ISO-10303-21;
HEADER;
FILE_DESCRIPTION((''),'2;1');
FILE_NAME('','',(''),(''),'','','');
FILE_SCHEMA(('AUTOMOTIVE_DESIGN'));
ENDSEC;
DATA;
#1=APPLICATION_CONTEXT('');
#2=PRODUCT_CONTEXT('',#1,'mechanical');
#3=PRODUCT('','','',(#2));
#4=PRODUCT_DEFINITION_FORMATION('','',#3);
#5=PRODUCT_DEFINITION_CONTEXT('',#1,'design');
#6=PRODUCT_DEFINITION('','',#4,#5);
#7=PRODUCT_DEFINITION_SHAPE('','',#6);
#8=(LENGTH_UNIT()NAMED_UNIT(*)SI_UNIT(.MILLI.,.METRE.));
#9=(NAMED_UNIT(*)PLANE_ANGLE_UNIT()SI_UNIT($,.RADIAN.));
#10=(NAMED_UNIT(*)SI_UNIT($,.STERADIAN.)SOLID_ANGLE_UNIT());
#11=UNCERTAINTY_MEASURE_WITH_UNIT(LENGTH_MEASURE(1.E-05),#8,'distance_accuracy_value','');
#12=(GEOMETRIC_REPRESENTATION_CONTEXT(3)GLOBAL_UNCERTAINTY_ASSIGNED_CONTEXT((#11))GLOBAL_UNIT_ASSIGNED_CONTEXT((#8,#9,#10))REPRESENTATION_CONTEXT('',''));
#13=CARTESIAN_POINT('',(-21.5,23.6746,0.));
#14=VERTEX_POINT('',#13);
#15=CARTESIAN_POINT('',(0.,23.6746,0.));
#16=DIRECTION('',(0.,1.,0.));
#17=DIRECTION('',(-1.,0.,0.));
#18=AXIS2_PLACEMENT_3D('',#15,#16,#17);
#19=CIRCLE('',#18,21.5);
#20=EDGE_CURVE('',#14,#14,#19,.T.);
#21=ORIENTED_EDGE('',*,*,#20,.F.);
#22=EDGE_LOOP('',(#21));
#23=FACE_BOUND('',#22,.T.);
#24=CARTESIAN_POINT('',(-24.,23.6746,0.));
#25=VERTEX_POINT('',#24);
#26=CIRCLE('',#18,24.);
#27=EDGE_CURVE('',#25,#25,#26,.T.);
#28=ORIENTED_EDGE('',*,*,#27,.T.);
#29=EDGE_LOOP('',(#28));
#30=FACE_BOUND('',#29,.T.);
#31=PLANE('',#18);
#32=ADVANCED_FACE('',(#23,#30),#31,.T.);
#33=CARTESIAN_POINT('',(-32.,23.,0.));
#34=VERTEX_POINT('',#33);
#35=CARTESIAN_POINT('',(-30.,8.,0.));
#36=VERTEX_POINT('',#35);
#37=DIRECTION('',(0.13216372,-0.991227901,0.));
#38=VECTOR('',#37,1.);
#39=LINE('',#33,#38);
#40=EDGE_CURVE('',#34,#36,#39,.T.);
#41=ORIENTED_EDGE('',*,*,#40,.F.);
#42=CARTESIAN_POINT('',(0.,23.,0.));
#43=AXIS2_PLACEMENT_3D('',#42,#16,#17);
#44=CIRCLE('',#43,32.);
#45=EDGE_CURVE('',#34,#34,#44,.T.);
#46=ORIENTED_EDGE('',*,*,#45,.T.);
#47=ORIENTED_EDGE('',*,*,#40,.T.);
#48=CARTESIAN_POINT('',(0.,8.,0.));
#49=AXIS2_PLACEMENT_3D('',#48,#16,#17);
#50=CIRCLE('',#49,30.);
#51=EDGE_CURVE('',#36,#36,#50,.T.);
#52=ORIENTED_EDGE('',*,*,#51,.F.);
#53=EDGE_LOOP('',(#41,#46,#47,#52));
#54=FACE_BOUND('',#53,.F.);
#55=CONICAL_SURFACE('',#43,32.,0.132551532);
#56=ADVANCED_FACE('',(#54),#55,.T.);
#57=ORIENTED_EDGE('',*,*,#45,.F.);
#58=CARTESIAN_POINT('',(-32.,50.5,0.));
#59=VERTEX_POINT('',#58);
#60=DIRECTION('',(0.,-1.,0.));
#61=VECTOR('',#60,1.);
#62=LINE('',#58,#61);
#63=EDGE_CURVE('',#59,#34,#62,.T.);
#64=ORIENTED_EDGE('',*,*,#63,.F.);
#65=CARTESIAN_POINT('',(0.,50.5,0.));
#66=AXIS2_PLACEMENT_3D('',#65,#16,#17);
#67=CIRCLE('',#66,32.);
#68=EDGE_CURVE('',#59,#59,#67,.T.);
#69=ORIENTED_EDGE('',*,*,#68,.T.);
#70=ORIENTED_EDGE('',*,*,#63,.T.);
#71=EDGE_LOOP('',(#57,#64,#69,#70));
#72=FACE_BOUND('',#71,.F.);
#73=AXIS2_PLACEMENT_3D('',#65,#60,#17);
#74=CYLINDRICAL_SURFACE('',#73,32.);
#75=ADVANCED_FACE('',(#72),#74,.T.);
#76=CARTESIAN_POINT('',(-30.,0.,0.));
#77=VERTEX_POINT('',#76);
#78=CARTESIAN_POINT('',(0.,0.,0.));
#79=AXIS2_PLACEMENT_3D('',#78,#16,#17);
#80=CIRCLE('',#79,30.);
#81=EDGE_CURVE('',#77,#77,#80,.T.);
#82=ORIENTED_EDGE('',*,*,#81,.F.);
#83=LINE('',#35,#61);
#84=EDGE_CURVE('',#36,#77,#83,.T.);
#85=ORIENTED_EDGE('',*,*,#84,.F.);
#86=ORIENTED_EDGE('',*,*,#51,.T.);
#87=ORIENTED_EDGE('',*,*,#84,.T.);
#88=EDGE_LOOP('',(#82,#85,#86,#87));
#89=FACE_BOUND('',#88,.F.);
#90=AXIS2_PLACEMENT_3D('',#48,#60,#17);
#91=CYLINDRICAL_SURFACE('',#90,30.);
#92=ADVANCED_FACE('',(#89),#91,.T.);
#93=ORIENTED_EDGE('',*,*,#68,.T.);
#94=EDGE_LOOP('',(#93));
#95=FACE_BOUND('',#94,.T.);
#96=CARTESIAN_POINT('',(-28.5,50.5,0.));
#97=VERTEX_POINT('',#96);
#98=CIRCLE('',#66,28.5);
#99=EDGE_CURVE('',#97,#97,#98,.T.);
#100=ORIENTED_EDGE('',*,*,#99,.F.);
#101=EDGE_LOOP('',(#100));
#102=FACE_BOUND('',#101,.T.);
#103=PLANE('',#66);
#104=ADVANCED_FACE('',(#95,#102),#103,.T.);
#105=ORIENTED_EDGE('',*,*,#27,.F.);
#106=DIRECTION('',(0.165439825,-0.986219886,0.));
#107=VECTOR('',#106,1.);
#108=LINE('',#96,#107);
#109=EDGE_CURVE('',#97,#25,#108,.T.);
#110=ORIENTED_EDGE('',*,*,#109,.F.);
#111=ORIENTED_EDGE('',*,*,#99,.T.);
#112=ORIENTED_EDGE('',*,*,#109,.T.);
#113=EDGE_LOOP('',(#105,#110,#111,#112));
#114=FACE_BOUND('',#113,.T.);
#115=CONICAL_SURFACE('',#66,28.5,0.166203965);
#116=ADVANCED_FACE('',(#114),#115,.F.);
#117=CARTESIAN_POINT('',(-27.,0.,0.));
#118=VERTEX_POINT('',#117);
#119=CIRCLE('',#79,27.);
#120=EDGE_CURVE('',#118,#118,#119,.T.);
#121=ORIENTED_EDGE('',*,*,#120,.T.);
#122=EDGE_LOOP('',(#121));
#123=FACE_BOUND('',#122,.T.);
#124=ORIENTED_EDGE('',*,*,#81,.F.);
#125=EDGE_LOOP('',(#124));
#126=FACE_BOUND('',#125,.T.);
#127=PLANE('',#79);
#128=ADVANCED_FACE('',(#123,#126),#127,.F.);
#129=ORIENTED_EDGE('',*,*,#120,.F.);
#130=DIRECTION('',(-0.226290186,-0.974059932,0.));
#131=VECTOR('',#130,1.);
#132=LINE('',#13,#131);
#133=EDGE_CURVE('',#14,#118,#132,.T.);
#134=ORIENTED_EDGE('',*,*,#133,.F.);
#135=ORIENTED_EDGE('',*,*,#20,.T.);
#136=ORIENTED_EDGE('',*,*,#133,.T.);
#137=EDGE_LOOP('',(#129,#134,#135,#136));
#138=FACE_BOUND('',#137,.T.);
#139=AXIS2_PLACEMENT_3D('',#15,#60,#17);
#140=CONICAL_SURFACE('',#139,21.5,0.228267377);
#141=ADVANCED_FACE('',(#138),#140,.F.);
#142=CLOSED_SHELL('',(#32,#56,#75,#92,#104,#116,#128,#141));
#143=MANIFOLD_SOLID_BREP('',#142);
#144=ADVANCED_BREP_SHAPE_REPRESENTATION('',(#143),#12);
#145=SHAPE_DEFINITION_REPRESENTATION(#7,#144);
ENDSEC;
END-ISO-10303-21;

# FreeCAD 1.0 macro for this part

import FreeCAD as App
import Part
import Sketcher
from FreeCAD import Vector
Q = App.Units.Quantity


def add_polygon(sketch, points):
    """Adds a closed chain of lines whose ends are joined by coincident constraints."""
    first, n = sketch.GeometryCount, len(points)
    for a, b in zip(points, points[1:] + points[:1]):
        sketch.addGeometry(Part.LineSegment(App.Vector(*a, 0), App.Vector(*b, 0)), False)
    for i in range(n):
        sketch.addConstraint(Sketcher.Constraint("Coincident", first + i, 2, first + (i + 1) % n, 1))

doc = App.newDocument("Part")
body = doc.addObject("PartDesign::Body", "Body")

# Sketch on XY plane
sketch1 = body.newObject("Sketcher::SketchObject", "Sketch")
sketch1.AttachmentSupport = (doc.getObject("XY_Plane"), [""])
sketch1.MapMode = "FlatFace"
add_polygon(sketch1, [(-28.5, 50.5), (-32, 50.5), (-32, 23), (-30, 8), (-30, 0), (-27, 0), (-21.5, 23.7), (-24, 23.7)])  # lines 0-7
sketch1.addConstraint([
    Sketcher.Constraint("Horizontal", 0),
    Sketcher.Constraint("Vertical", 1),
    Sketcher.Constraint("Vertical", 3),
    Sketcher.Constraint("Horizontal", 4),
    Sketcher.Constraint("Horizontal", 6),
    Sketcher.Constraint("PointOnObject", 3, 2, -1),
    Sketcher.Constraint("DistanceX", 4, 1, 4, 2, Q("3 mm")),
    Sketcher.Constraint("DistanceY", 3, 2, 3, 1, Q("8 mm")),
    Sketcher.Constraint("DistanceX", 0, 2, 0, 1, Q("3.5 mm")),
    Sketcher.Constraint("DistanceX", 6, 2, 6, 1, Q("2.5 mm")),
    Sketcher.Constraint("DistanceX", 1, 2, 2, 2, Q("2 mm")),
    Sketcher.Constraint("DistanceY", 2, 2, 1, 2, Q("15 mm")),
    Sketcher.Constraint("DistanceX", 1, 2, 6, 2, Q("8 mm")),
    Sketcher.Constraint("DistanceY", 1, 2, 1, 1, Q("27.5 mm")),
    Sketcher.Constraint("DistanceX", 0, 2, -1, 1, Q("32 mm")),
    Sketcher.Constraint("Distance", 5, Q("24.305 mm")),
])
revolution = body.newObject("PartDesign::Revolution", "Revolution")
revolution.Profile = sketch1
revolution.ReferenceAxis = (sketch1, ["V_Axis"])
revolution.Angle = 360

doc.recompute()
